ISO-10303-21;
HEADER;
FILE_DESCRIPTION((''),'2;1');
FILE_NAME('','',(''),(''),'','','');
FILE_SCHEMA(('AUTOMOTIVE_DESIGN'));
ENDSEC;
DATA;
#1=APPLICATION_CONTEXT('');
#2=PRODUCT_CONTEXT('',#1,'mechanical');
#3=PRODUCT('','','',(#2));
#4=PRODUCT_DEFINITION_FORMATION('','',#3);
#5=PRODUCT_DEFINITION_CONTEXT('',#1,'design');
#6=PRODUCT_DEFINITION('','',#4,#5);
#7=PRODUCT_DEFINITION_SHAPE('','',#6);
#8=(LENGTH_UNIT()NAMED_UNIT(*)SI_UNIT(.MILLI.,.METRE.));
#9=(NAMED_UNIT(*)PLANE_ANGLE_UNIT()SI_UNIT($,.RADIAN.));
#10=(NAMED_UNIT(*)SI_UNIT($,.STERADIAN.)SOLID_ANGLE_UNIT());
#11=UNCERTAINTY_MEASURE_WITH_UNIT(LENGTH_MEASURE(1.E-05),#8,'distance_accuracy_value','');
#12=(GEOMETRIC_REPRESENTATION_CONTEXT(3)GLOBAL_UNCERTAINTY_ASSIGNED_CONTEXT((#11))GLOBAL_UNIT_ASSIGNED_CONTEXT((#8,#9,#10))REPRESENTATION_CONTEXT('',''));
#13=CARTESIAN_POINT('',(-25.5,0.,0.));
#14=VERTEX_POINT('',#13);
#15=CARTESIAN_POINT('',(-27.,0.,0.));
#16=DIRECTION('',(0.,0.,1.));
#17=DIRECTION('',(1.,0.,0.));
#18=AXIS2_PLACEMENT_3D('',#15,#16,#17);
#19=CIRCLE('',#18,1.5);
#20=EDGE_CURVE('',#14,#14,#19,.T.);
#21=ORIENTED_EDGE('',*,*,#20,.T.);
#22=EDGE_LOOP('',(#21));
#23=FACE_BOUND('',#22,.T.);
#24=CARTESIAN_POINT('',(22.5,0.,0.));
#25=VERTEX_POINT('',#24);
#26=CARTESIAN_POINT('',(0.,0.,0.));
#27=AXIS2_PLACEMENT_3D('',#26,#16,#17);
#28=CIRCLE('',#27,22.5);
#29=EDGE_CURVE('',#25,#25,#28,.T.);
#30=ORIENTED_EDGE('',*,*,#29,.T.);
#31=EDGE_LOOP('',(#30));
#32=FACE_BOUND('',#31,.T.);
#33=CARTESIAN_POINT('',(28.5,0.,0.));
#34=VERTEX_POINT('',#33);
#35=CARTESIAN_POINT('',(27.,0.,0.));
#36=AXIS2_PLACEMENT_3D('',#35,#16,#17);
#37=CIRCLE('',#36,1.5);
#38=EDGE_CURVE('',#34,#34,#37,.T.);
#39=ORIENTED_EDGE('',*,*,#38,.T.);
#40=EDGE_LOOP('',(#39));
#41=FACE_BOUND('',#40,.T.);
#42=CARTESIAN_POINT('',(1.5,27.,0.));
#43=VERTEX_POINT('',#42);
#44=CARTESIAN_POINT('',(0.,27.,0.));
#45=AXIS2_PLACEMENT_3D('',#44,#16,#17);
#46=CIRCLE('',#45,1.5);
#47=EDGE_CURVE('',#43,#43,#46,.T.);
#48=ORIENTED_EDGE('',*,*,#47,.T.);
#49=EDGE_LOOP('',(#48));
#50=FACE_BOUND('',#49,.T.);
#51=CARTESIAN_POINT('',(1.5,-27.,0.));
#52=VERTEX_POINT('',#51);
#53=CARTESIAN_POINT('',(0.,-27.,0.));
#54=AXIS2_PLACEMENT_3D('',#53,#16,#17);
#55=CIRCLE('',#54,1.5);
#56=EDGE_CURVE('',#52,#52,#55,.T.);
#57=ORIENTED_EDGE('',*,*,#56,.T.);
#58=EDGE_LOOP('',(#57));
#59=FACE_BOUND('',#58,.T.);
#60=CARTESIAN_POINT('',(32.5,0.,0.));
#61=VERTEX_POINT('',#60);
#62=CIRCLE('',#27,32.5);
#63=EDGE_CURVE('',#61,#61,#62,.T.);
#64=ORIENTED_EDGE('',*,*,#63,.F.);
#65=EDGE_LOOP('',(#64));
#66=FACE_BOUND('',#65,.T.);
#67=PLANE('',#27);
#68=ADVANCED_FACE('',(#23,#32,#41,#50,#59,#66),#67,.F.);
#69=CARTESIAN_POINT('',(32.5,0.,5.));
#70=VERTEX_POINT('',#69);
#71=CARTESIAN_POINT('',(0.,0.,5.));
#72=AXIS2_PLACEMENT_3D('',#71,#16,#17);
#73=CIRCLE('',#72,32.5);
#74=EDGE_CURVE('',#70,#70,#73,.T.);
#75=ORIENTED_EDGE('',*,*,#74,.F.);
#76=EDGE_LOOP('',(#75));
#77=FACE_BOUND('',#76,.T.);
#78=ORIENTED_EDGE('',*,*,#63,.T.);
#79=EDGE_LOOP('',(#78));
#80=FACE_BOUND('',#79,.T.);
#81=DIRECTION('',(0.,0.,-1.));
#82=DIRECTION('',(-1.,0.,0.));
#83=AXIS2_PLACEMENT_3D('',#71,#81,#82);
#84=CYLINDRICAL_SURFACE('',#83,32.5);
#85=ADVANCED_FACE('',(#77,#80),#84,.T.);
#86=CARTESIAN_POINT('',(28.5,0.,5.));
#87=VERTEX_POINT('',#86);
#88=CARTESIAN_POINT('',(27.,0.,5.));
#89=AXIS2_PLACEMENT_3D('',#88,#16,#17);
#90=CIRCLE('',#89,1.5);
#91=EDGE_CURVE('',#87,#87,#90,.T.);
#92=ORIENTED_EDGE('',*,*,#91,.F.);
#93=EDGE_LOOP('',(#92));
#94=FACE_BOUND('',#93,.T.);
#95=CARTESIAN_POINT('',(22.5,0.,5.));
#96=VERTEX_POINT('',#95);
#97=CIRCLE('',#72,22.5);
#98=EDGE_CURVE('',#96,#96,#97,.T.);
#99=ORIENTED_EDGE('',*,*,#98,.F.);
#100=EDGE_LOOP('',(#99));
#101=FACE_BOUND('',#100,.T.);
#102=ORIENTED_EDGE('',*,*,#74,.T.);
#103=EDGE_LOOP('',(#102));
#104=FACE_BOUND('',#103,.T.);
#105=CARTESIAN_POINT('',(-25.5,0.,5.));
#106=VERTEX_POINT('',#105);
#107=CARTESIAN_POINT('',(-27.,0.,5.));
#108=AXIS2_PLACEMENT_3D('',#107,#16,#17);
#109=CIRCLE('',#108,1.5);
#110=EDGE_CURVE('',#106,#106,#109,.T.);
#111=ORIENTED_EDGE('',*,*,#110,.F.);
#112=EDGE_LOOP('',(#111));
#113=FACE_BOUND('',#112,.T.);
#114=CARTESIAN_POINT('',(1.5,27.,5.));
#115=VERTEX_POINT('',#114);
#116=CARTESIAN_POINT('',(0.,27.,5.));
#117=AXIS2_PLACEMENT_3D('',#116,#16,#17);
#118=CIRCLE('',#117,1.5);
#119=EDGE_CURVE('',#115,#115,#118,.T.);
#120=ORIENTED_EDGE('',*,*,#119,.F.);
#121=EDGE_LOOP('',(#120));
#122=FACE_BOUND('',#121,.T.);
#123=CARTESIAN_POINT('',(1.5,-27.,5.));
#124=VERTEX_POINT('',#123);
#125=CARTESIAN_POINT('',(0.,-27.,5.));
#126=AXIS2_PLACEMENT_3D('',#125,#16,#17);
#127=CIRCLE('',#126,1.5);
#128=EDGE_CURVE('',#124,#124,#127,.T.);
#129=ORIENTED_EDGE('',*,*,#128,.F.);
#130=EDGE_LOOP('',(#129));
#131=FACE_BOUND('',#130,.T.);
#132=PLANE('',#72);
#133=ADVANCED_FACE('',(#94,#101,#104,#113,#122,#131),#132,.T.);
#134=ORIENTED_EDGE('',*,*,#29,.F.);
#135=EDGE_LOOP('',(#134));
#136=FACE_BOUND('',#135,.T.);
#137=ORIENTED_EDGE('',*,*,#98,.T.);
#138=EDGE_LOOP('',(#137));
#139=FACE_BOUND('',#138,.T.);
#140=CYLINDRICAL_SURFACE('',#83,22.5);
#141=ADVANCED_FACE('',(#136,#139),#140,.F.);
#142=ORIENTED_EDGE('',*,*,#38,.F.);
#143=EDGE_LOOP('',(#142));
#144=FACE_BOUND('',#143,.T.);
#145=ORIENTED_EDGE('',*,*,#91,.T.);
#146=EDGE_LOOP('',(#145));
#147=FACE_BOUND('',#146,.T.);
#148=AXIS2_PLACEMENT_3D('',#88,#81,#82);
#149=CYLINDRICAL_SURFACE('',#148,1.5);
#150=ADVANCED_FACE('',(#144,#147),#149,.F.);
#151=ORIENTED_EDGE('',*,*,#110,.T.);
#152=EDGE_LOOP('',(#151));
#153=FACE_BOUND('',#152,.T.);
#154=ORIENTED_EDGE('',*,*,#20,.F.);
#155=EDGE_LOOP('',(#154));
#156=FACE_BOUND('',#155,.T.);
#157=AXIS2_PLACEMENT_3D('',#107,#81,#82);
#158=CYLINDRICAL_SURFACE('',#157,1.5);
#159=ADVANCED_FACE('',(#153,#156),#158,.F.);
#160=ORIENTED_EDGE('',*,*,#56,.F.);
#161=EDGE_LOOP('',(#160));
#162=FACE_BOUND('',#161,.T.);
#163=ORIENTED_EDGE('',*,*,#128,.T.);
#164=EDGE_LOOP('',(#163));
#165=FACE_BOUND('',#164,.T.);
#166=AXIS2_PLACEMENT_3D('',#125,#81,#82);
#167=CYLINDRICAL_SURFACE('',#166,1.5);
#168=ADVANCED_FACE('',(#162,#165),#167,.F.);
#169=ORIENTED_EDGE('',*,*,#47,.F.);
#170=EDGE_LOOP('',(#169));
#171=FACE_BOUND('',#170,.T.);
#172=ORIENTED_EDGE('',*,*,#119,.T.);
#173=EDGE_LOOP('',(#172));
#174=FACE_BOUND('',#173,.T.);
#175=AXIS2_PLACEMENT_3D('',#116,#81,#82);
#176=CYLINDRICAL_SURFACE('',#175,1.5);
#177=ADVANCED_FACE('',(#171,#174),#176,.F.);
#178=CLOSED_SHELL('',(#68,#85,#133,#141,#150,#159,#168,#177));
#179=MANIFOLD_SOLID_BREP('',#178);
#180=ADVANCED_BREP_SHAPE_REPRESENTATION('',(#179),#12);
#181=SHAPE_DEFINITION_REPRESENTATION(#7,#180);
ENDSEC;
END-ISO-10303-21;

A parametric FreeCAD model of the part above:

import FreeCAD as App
import Part
import Sketcher
from FreeCAD import Vector

doc = App.newDocument("Part")
body = doc.addObject("PartDesign::Body", "Body")

# Sketch on XY plane
sketch1 = body.newObject("Sketcher::SketchObject", "Sketch")
sketch1.AttachmentSupport = (doc.getObject("XY_Plane"), [""])
sketch1.MapMode = "FlatFace"
sketch1.addGeometry([
    Part.Circle(Vector(0, 0, 0), Vector(0, 0, 1), 32.5),  # 0
    Part.Circle(Vector(0, -27, 0), Vector(0, 0, 1), 1.5),  # 1
    Part.Circle(Vector(-27, 0, 0), Vector(0, 0, 1), 1.5),  # 2
    Part.Circle(Vector(0, 0, 0), Vector(0, 0, 1), 22.5),  # 3
    Part.Circle(Vector(27, 0, 0), Vector(0, 0, 1), 1.5),  # 4
    Part.Circle(Vector(0, 27, 0), Vector(0, 0, 1), 1.5),  # 5
], False)
sketch1.addConstraint([
    Sketcher.Constraint("Coincident", 0, 3, -1, 1),
    Sketcher.Constraint("Coincident", 3, 3, -1, 1),
    Sketcher.Constraint("Equal", 1, 2),
    Sketcher.Constraint("Equal", 2, 4),
    Sketcher.Constraint("Equal", 4, 5),
    Sketcher.Constraint("Symmetric", 2, 3, 4, 3, -1, 1),
    Sketcher.Constraint("Symmetric", 1, 3, 5, 3, -1, 1),
    Sketcher.Constraint("PointOnObject", 1, 3, -2),
    Sketcher.Constraint("PointOnObject", 2, 3, -1),
    Sketcher.Constraint("Diameter", 0, 65.0),
    Sketcher.Constraint("Diameter", 1, 3.0),
    Sketcher.Constraint("Diameter", 3, 45.0),
    Sketcher.Constraint("DistanceY", 1, 3, -1, 1, 27.0),
    Sketcher.Constraint("DistanceX", 2, 3, -1, 1, 27.0),
])
pad1 = body.newObject("PartDesign::Pad", "Pad")
pad1.Profile = sketch1
pad1.Length = 5

doc.recompute()
